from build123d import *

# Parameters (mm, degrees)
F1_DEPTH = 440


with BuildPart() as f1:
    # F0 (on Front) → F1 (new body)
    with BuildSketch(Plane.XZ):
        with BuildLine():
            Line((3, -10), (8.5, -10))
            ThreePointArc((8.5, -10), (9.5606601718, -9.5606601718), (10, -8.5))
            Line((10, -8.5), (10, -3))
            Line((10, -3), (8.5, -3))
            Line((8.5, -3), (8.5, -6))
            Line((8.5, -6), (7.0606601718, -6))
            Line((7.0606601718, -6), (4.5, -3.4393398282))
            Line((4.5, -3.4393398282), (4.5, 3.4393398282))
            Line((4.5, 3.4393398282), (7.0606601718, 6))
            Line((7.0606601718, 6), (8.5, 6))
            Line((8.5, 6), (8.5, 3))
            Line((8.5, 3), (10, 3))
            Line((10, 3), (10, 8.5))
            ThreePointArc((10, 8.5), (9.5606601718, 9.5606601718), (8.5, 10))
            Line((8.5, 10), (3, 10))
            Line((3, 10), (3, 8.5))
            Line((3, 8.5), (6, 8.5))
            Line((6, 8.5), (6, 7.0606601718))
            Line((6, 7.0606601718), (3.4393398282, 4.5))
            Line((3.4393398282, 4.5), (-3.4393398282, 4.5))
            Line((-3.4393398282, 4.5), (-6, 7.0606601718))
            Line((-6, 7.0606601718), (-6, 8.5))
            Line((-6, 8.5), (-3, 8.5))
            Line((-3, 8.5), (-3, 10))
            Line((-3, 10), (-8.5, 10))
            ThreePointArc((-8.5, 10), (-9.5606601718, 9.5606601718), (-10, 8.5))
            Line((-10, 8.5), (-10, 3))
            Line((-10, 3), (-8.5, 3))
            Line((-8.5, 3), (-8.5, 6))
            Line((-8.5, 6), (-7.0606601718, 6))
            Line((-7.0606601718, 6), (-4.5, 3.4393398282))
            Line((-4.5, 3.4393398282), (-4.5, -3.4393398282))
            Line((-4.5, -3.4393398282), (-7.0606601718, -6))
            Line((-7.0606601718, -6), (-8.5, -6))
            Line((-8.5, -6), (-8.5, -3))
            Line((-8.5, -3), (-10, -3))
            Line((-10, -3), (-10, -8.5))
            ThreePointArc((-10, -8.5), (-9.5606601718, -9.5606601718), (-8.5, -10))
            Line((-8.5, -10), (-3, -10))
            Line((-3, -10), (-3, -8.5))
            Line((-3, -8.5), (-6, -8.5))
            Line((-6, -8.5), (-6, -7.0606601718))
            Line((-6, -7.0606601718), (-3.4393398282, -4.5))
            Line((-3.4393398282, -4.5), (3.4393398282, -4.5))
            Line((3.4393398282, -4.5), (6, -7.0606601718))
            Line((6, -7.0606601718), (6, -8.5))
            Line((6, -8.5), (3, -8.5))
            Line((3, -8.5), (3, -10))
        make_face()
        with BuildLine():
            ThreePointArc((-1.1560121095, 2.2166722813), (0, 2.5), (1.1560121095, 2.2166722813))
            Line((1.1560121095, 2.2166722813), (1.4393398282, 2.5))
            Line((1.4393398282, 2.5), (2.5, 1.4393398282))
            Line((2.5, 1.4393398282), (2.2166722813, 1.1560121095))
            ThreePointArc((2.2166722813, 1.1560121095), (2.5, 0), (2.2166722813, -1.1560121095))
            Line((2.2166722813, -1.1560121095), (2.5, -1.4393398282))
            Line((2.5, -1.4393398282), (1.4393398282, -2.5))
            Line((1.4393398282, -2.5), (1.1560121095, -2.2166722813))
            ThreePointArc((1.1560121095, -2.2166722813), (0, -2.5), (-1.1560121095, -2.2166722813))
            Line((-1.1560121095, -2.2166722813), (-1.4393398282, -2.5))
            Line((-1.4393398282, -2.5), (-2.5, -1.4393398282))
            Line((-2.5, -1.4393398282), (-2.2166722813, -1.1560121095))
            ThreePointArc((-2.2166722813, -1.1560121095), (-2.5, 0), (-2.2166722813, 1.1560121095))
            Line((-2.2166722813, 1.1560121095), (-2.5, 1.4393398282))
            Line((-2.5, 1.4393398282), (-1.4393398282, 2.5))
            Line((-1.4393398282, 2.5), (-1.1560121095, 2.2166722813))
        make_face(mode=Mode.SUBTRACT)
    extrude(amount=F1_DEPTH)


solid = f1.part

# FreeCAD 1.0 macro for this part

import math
import FreeCAD as App
import Part
import Sketcher

doc = App.newDocument("Part")
params = doc.addObject("Spreadsheet::Sheet", "Params")
for row, (alias, value) in enumerate([
    ("sketch1_radius", "1.5 mm"),
    ("sketch1_radius2", "2.5 mm"),
    ("sketch1_width", "3 mm"),
    ("sketch1_width2", "5.5 mm"),
    ("sketch1_length", "1.5 mm"),
    ("pad1_length", "440 mm"),
], start=1):
    params.set(f"A{row}", alias)
    params.set(f"B{row}", "=" + value)
    params.setAlias(f"B{row}", alias)

body = doc.addObject("PartDesign::Body", "Body")

# Sketch on XZ plane
sketch1 = body.newObject("Sketcher::SketchObject", "Sketch")
sketch1.AttachmentSupport = (doc.getObject("XZ_Plane"), [""])
sketch1.MapMode = "FlatFace"
sketch1.addGeometry(Part.LineSegment(App.Vector(3, -10, 0), App.Vector(8.5, -10, 0)), False)
sketch1.addGeometry(Part.ArcOfCircle(Part.Circle(App.Vector(8.5, -8.5, 0), App.Vector(0, 0, 1), 1.5), math.radians(-90), math.radians(0)), False)
sketch1.addGeometry(Part.LineSegment(App.Vector(10, -8.5, 0), App.Vector(10, -3, 0)), False)
sketch1.addGeometry(Part.LineSegment(App.Vector(10, -3, 0), App.Vector(8.5, -3, 0)), False)
sketch1.addGeometry(Part.LineSegment(App.Vector(8.5, -3, 0), App.Vector(8.5, -6, 0)), False)
sketch1.addGeometry(Part.LineSegment(App.Vector(8.5, -6, 0), App.Vector(7.06, -6, 0)), False)
sketch1.addGeometry(Part.LineSegment(App.Vector(7.06, -6, 0), App.Vector(4.5, -3.44, 0)), False)
sketch1.addGeometry(Part.LineSegment(App.Vector(4.5, -3.44, 0), App.Vector(4.5, 3.44, 0)), False)
sketch1.addGeometry(Part.LineSegment(App.Vector(4.5, 3.44, 0), App.Vector(7.06, 6, 0)), False)
sketch1.addGeometry(Part.LineSegment(App.Vector(7.06, 6, 0), App.Vector(8.5, 6, 0)), False)
sketch1.addGeometry(Part.LineSegment(App.Vector(8.5, 6, 0), App.Vector(8.5, 3, 0)), False)
sketch1.addGeometry(Part.LineSegment(App.Vector(8.5, 3, 0), App.Vector(10, 3, 0)), False)
sketch1.addGeometry(Part.LineSegment(App.Vector(10, 3, 0), App.Vector(10, 8.5, 0)), False)
sketch1.addGeometry(Part.ArcOfCircle(Part.Circle(App.Vector(8.5, 8.5, 0), App.Vector(0, 0, 1), 1.5), math.radians(0), math.radians(90)), False)
sketch1.addGeometry(Part.LineSegment(App.Vector(8.5, 10, 0), App.Vector(3, 10, 0)), False)
sketch1.addGeometry(Part.LineSegment(App.Vector(3, 10, 0), App.Vector(3, 8.5, 0)), False)
sketch1.addGeometry(Part.LineSegment(App.Vector(3, 8.5, 0), App.Vector(6, 8.5, 0)), False)
sketch1.addGeometry(Part.LineSegment(App.Vector(6, 8.5, 0), App.Vector(6, 7.06, 0)), False)
sketch1.addGeometry(Part.LineSegment(App.Vector(6, 7.06, 0), App.Vector(3.44, 4.5, 0)), False)
sketch1.addGeometry(Part.LineSegment(App.Vector(3.44, 4.5, 0), App.Vector(-3.44, 4.5, 0)), False)
sketch1.addGeometry(Part.LineSegment(App.Vector(-3.44, 4.5, 0), App.Vector(-6, 7.06, 0)), False)
sketch1.addGeometry(Part.LineSegment(App.Vector(-6, 7.06, 0), App.Vector(-6, 8.5, 0)), False)
sketch1.addGeometry(Part.LineSegment(App.Vector(-6, 8.5, 0), App.Vector(-3, 8.5, 0)), False)
sketch1.addGeometry(Part.LineSegment(App.Vector(-3, 8.5, 0), App.Vector(-3, 10, 0)), False)
sketch1.addGeometry(Part.LineSegment(App.Vector(-3, 10, 0), App.Vector(-8.5, 10, 0)), False)
sketch1.addGeometry(Part.ArcOfCircle(Part.Circle(App.Vector(-8.5, 8.5, 0), App.Vector(0, 0, 1), 1.5), math.radians(90), math.radians(180)), False)
sketch1.addGeometry(Part.LineSegment(App.Vector(-10, 8.5, 0), App.Vector(-10, 3, 0)), False)
sketch1.addGeometry(Part.LineSegment(App.Vector(-10, 3, 0), App.Vector(-8.5, 3, 0)), False)
sketch1.addGeometry(Part.LineSegment(App.Vector(-8.5, 3, 0), App.Vector(-8.5, 6, 0)), False)
sketch1.addGeometry(Part.LineSegment(App.Vector(-8.5, 6, 0), App.Vector(-7.06, 6, 0)), False)
sketch1.addGeometry(Part.LineSegment(App.Vector(-7.06, 6, 0), App.Vector(-4.5, 3.44, 0)), False)
sketch1.addGeometry(Part.LineSegment(App.Vector(-4.5, 3.44, 0), App.Vector(-4.5, -3.44, 0)), False)
sketch1.addGeometry(Part.LineSegment(App.Vector(-4.5, -3.44, 0), App.Vector(-7.06, -6, 0)), False)
sketch1.addGeometry(Part.LineSegment(App.Vector(-7.06, -6, 0), App.Vector(-8.5, -6, 0)), False)
sketch1.addGeometry(Part.LineSegment(App.Vector(-8.5, -6, 0), App.Vector(-8.5, -3, 0)), False)
sketch1.addGeometry(Part.LineSegment(App.Vector(-8.5, -3, 0), App.Vector(-10, -3, 0)), False)
sketch1.addGeometry(Part.LineSegment(App.Vector(-10, -3, 0), App.Vector(-10, -8.5, 0)), False)
sketch1.addGeometry(Part.ArcOfCircle(Part.Circle(App.Vector(-8.5, -8.5, 0), App.Vector(0, 0, 1), 1.5), math.radians(180), math.radians(270)), False)
sketch1.addGeometry(Part.LineSegment(App.Vector(-8.5, -10, 0), App.Vector(-3, -10, 0)), False)
sketch1.addGeometry(Part.LineSegment(App.Vector(-3, -10, 0), App.Vector(-3, -8.5, 0)), False)
sketch1.addGeometry(Part.LineSegment(App.Vector(-3, -8.5, 0), App.Vector(-6, -8.5, 0)), False)
sketch1.addGeometry(Part.LineSegment(App.Vector(-6, -8.5, 0), App.Vector(-6, -7.06, 0)), False)
sketch1.addGeometry(Part.LineSegment(App.Vector(-6, -7.06, 0), App.Vector(-3.44, -4.5, 0)), False)
sketch1.addGeometry(Part.LineSegment(App.Vector(-3.44, -4.5, 0), App.Vector(3.44, -4.5, 0)), False)
sketch1.addGeometry(Part.LineSegment(App.Vector(3.44, -4.5, 0), App.Vector(6, -7.06, 0)), False)
sketch1.addGeometry(Part.LineSegment(App.Vector(6, -7.06, 0), App.Vector(6, -8.5, 0)), False)
sketch1.addGeometry(Part.LineSegment(App.Vector(6, -8.5, 0), App.Vector(3, -8.5, 0)), False)
sketch1.addGeometry(Part.LineSegment(App.Vector(3, -8.5, 0), App.Vector(3, -10, 0)), False)
sketch1.addGeometry(Part.LineSegment(App.Vector(-1.44, 2.5, 0), App.Vector(-1.16, 2.22, 0)), False)
sketch1.addGeometry(Part.ArcOfCircle(Part.Circle(App.Vector(0, 0, 0), App.Vector(0, 0, 1), 2.5), math.radians(62), math.radians(118)), False)
sketch1.addGeometry(Part.LineSegment(App.Vector(1.16, 2.22, 0), App.Vector(1.44, 2.5, 0)), False)
sketch1.addGeometry(Part.LineSegment(App.Vector(1.44, 2.5, 0), App.Vector(2.5, 1.44, 0)), False)
sketch1.addGeometry(Part.LineSegment(App.Vector(2.5, 1.44, 0), App.Vector(2.22, 1.16, 0)), False)
sketch1.addGeometry(Part.ArcOfCircle(Part.Circle(App.Vector(0, 0, 0), App.Vector(0, 0, 1), 2.5), math.radians(-28), math.radians(28)), False)
sketch1.addGeometry(Part.LineSegment(App.Vector(2.22, -1.16, 0), App.Vector(2.5, -1.44, 0)), False)
sketch1.addGeometry(Part.LineSegment(App.Vector(2.5, -1.44, 0), App.Vector(1.44, -2.5, 0)), False)
sketch1.addGeometry(Part.LineSegment(App.Vector(1.44, -2.5, 0), App.Vector(1.16, -2.22, 0)), False)
sketch1.addGeometry(Part.ArcOfCircle(Part.Circle(App.Vector(0, 0, 0), App.Vector(0, 0, 1), 2.5), math.radians(-118), math.radians(-62)), False)
sketch1.addGeometry(Part.LineSegment(App.Vector(-1.16, -2.22, 0), App.Vector(-1.44, -2.5, 0)), False)
sketch1.addGeometry(Part.LineSegment(App.Vector(-1.44, -2.5, 0), App.Vector(-2.5, -1.44, 0)), False)
sketch1.addGeometry(Part.LineSegment(App.Vector(-2.5, -1.44, 0), App.Vector(-2.22, -1.16, 0)), False)
sketch1.addGeometry(Part.ArcOfCircle(Part.Circle(App.Vector(0, 0, 0), App.Vector(0, 0, 1), 2.5), math.radians(152), math.radians(208)), False)
sketch1.addGeometry(Part.LineSegment(App.Vector(-2.22, 1.16, 0), App.Vector(-2.5, 1.44, 0)), False)
sketch1.addGeometry(Part.LineSegment(App.Vector(-2.5, 1.44, 0), App.Vector(-1.44, 2.5, 0)), False)
sketch1.addConstraint(Sketcher.Constraint("Tangent", 0, 2, 1, 1))
sketch1.addConstraint(Sketcher.Constraint("Tangent", 1, 2, 2, 1))
sketch1.addConstraint(Sketcher.Constraint("Coincident", 2, 2, 3, 1))
sketch1.addConstraint(Sketcher.Constraint("Coincident", 3, 2, 4, 1))
sketch1.addConstraint(Sketcher.Constraint("Coincident", 4, 2, 5, 1))
sketch1.addConstraint(Sketcher.Constraint("Coincident", 5, 2, 6, 1))
sketch1.addConstraint(Sketcher.Constraint("Coincident", 6, 2, 7, 1))
sketch1.addConstraint(Sketcher.Constraint("Coincident", 7, 2, 8, 1))
sketch1.addConstraint(Sketcher.Constraint("Coincident", 8, 2, 9, 1))
sketch1.addConstraint(Sketcher.Constraint("Coincident", 9, 2, 10, 1))
sketch1.addConstraint(Sketcher.Constraint("Coincident", 10, 2, 11, 1))
sketch1.addConstraint(Sketcher.Constraint("Coincident", 11, 2, 12, 1))
sketch1.addConstraint(Sketcher.Constraint("Tangent", 12, 2, 13, 1))
sketch1.addConstraint(Sketcher.Constraint("Tangent", 13, 2, 14, 1))
sketch1.addConstraint(Sketcher.Constraint("Coincident", 14, 2, 15, 1))
sketch1.addConstraint(Sketcher.Constraint("Coincident", 15, 2, 16, 1))
sketch1.addConstraint(Sketcher.Constraint("Coincident", 16, 2, 17, 1))
sketch1.addConstraint(Sketcher.Constraint("Coincident", 17, 2, 18, 1))
sketch1.addConstraint(Sketcher.Constraint("Coincident", 18, 2, 19, 1))
sketch1.addConstraint(Sketcher.Constraint("Coincident", 19, 2, 20, 1))
sketch1.addConstraint(Sketcher.Constraint("Coincident", 20, 2, 21, 1))
sketch1.addConstraint(Sketcher.Constraint("Coincident", 21, 2, 22, 1))
sketch1.addConstraint(Sketcher.Constraint("Coincident", 22, 2, 23, 1))
sketch1.addConstraint(Sketcher.Constraint("Coincident", 23, 2, 24, 1))
sketch1.addConstraint(Sketcher.Constraint("Tangent", 24, 2, 25, 1))
sketch1.addConstraint(Sketcher.Constraint("Tangent", 25, 2, 26, 1))
sketch1.addConstraint(Sketcher.Constraint("Coincident", 26, 2, 27, 1))
sketch1.addConstraint(Sketcher.Constraint("Coincident", 27, 2, 28, 1))
sketch1.addConstraint(Sketcher.Constraint("Coincident", 28, 2, 29, 1))
sketch1.addConstraint(Sketcher.Constraint("Coincident", 29, 2, 30, 1))
sketch1.addConstraint(Sketcher.Constraint("Coincident", 30, 2, 31, 1))
sketch1.addConstraint(Sketcher.Constraint("Coincident", 31, 2, 32, 1))
sketch1.addConstraint(Sketcher.Constraint("Coincident", 32, 2, 33, 1))
sketch1.addConstraint(Sketcher.Constraint("Coincident", 33, 2, 34, 1))
sketch1.addConstraint(Sketcher.Constraint("Coincident", 34, 2, 35, 1))
sketch1.addConstraint(Sketcher.Constraint("Coincident", 35, 2, 36, 1))
sketch1.addConstraint(Sketcher.Constraint("Tangent", 36, 2, 37, 1))
sketch1.addConstraint(Sketcher.Constraint("Tangent", 37, 2, 38, 1))
sketch1.addConstraint(Sketcher.Constraint("Coincident", 38, 2, 39, 1))
sketch1.addConstraint(Sketcher.Constraint("Coincident", 39, 2, 40, 1))
sketch1.addConstraint(Sketcher.Constraint("Coincident", 40, 2, 41, 1))
sketch1.addConstraint(Sketcher.Constraint("Coincident", 41, 2, 42, 1))
sketch1.addConstraint(Sketcher.Constraint("Coincident", 42, 2, 43, 1))
sketch1.addConstraint(Sketcher.Constraint("Coincident", 43, 2, 44, 1))
sketch1.addConstraint(Sketcher.Constraint("Coincident", 44, 2, 45, 1))
sketch1.addConstraint(Sketcher.Constraint("Coincident", 45, 2, 46, 1))
sketch1.addConstraint(Sketcher.Constraint("Coincident", 46, 2, 47, 1))
sketch1.addConstraint(Sketcher.Constraint("Coincident", 47, 2, 0, 1))
sketch1.addConstraint(Sketcher.Constraint("Coincident", 48, 2, 49, 2))
sketch1.addConstraint(Sketcher.Constraint("Coincident", 49, 1, 50, 1))
sketch1.addConstraint(Sketcher.Constraint("Coincident", 50, 2, 51, 1))
sketch1.addConstraint(Sketcher.Constraint("Coincident", 51, 2, 52, 1))
sketch1.addConstraint(Sketcher.Constraint("Coincident", 52, 2, 53, 2))
sketch1.addConstraint(Sketcher.Constraint("Coincident", 53, 1, 54, 1))
sketch1.addConstraint(Sketcher.Constraint("Coincident", 54, 2, 55, 1))
sketch1.addConstraint(Sketcher.Constraint("Coincident", 55, 2, 56, 1))
sketch1.addConstraint(Sketcher.Constraint("Coincident", 56, 2, 57, 2))
sketch1.addConstraint(Sketcher.Constraint("Coincident", 57, 1, 58, 1))
sketch1.addConstraint(Sketcher.Constraint("Coincident", 58, 2, 59, 1))
sketch1.addConstraint(Sketcher.Constraint("Coincident", 59, 2, 60, 1))
sketch1.addConstraint(Sketcher.Constraint("Coincident", 60, 2, 61, 2))
sketch1.addConstraint(Sketcher.Constraint("Coincident", 61, 1, 62, 1))
sketch1.addConstraint(Sketcher.Constraint("Coincident", 62, 2, 63, 1))
sketch1.addConstraint(Sketcher.Constraint("Coincident", 63, 2, 48, 1))
sketch1.addConstraint(Sketcher.Constraint("Horizontal", 0))
sketch1.addConstraint(Sketcher.Constraint("Vertical", 2))
sketch1.addConstraint(Sketcher.Constraint("Horizontal", 3))
sketch1.addConstraint(Sketcher.Constraint("Vertical", 4))
sketch1.addConstraint(Sketcher.Constraint("Horizontal", 5))
sketch1.addConstraint(Sketcher.Constraint("Vertical", 7))
sketch1.addConstraint(Sketcher.Constraint("Horizontal", 9))
sketch1.addConstraint(Sketcher.Constraint("Vertical", 10))
sketch1.addConstraint(Sketcher.Constraint("Horizontal", 11))
sketch1.addConstraint(Sketcher.Constraint("Vertical", 12))
sketch1.addConstraint(Sketcher.Constraint("Horizontal", 14))
sketch1.addConstraint(Sketcher.Constraint("Vertical", 15))
sketch1.addConstraint(Sketcher.Constraint("Horizontal", 16))
sketch1.addConstraint(Sketcher.Constraint("Vertical", 17))
sketch1.addConstraint(Sketcher.Constraint("Horizontal", 19))
sketch1.addConstraint(Sketcher.Constraint("Vertical", 21))
sketch1.addConstraint(Sketcher.Constraint("Horizontal", 22))
sketch1.addConstraint(Sketcher.Constraint("Vertical", 23))
sketch1.addConstraint(Sketcher.Constraint("Horizontal", 24))
sketch1.addConstraint(Sketcher.Constraint("Vertical", 26))
sketch1.addConstraint(Sketcher.Constraint("Horizontal", 27))
sketch1.addConstraint(Sketcher.Constraint("Vertical", 28))
sketch1.addConstraint(Sketcher.Constraint("Horizontal", 29))
sketch1.addConstraint(Sketcher.Constraint("Vertical", 31))
sketch1.addConstraint(Sketcher.Constraint("Horizontal", 33))
sketch1.addConstraint(Sketcher.Constraint("Vertical", 34))
sketch1.addConstraint(Sketcher.Constraint("Horizontal", 35))
sketch1.addConstraint(Sketcher.Constraint("Vertical", 36))
sketch1.addConstraint(Sketcher.Constraint("Horizontal", 38))
sketch1.addConstraint(Sketcher.Constraint("Vertical", 39))
sketch1.addConstraint(Sketcher.Constraint("Horizontal", 40))
sketch1.addConstraint(Sketcher.Constraint("Vertical", 41))
sketch1.addConstraint(Sketcher.Constraint("Horizontal", 43))
sketch1.addConstraint(Sketcher.Constraint("Vertical", 45))
sketch1.addConstraint(Sketcher.Constraint("Horizontal", 46))
sketch1.addConstraint(Sketcher.Constraint("Vertical", 47))
sketch1.addConstraint(Sketcher.Constraint("Coincident", 49, 3, -1, 1))
sketch1.addConstraint(Sketcher.Constraint("Coincident", 53, 3, -1, 1))
sketch1.addConstraint(Sketcher.Constraint("Coincident", 57, 3, -1, 1))
sketch1.addConstraint(Sketcher.Constraint("Coincident", 61, 3, -1, 1))
sketch1.addConstraint(Sketcher.Constraint("Equal", 1, 13))
sketch1.addConstraint(Sketcher.Constraint("Equal", 13, 25))
sketch1.addConstraint(Sketcher.Constraint("Equal", 25, 37))
sketch1.addConstraint(Sketcher.Constraint("Equal", 49, 53))
sketch1.addConstraint(Sketcher.Constraint("Equal", 53, 57))
sketch1.addConstraint(Sketcher.Constraint("Equal", 57, 61))
sketch1.addConstraint(Sketcher.Constraint("Symmetric", 1, 3, 25, 3, -1, 1))
sketch1.addConstraint(Sketcher.Constraint("Symmetric", 13, 3, 37, 3, -1, 1))
sketch1.addConstraint(Sketcher.Constraint("Symmetric", 3, 2, 27, 2, -1, 1))
sketch1.addConstraint(Sketcher.Constraint("Symmetric", 5, 2, 29, 2, -1, 1))
sketch1.addConstraint(Sketcher.Constraint("Symmetric", 6, 2, 30, 2, -1, 1))
sketch1.addConstraint(Sketcher.Constraint("Symmetric", 8, 2, 32, 2, -1, 1))
sketch1.addConstraint(Sketcher.Constraint("Symmetric", 10, 2, 34, 2, -1, 1))
sketch1.addConstraint(Sketcher.Constraint("Symmetric", 15, 2, 39, 2, -1, 1))
sketch1.addConstraint(Sketcher.Constraint("Symmetric", 17, 2, 41, 2, -1, 1))
sketch1.addConstraint(Sketcher.Constraint("Symmetric", 18, 2, 42, 2, -1, 1))
sketch1.addConstraint(Sketcher.Constraint("Symmetric", 20, 2, 44, 2, -1, 1))
sketch1.addConstraint(Sketcher.Constraint("Symmetric", 22, 2, 46, 2, -1, 1))
sketch1.addConstraint(Sketcher.Constraint("Symmetric", 50, 2, 58, 2, -1, 1))
sketch1.addConstraint(Sketcher.Constraint("Symmetric", 51, 2, 59, 2, -1, 1))
sketch1.addConstraint(Sketcher.Constraint("Symmetric", 54, 2, 62, 2, -1, 1))
sketch1.addConstraint(Sketcher.Constraint("Symmetric", 55, 2, 63, 2, -1, 1))
sketch1.addConstraint(Sketcher.Constraint("Symmetric", 13, 3, 25, 3, -2))
sketch1.addConstraint(Sketcher.Constraint("Symmetric", 17, 2, 20, 2, -2))
sketch1.addConstraint(Sketcher.Constraint("Symmetric", 15, 2, 22, 2, -2))
sketch1.addConstraint(Sketcher.Constraint("Symmetric", 10, 2, 27, 2, -2))
sketch1.addConstraint(Sketcher.Constraint("Symmetric", 8, 2, 29, 2, -2))
sketch1.addConstraint(Sketcher.Constraint("Symmetric", 55, 2, 58, 2, -2))
sketch1.addConstraint(Sketcher.Constraint("Symmetric", 54, 2, 59, 2, -2))
sketch1.addConstraint(Sketcher.Constraint("Perpendicular", 6, 8))
sketch1.addConstraint(Sketcher.Constraint("Parallel", 8, 18))
sketch1.addConstraint(Sketcher.Constraint("Perpendicular", 18, 20))
sketch1.addConstraint(Sketcher.Constraint("Perpendicular", 30, 32))
sketch1.addConstraint(Sketcher.Constraint("Perpendicular", 42, 44))
sketch1.addConstraint(Sketcher.Constraint("Parallel", 44, 48))
sketch1.addConstraint(Sketcher.Constraint("Perpendicular", 48, 50))
sketch1.addConstraint(Sketcher.Constraint("Perpendicular", 50, 51))
sketch1.addConstraint(Sketcher.Constraint("Perpendicular", 51, 52))
sketch1.addConstraint(Sketcher.Constraint("Perpendicular", 52, 54))
sketch1.addConstraint(Sketcher.Constraint("Perpendicular", 54, 55))
sketch1.addConstraint(Sketcher.Constraint("Perpendicular", 55, 56))
sketch1.addConstraint(Sketcher.Constraint("Perpendicular", 56, 58))
sketch1.addConstraint(Sketcher.Constraint("Perpendicular", 59, 60))
sketch1.addConstraint(Sketcher.Constraint("Perpendicular", 60, 62))
sketch1.addConstraint(Sketcher.Constraint("Horizontal", 12, 2, 15, 2))
sketch1.addConstraint(Sketcher.Constraint("Vertical", 0, 2, 3, 2))
sketch1.addConstraint(Sketcher.Constraint("Equal", 38, 2))
sketch1.addConstraint(Sketcher.Constraint("Equal", 46, 4))
sketch1.addConstraint(Sketcher.Constraint("Equal", 43, 7))
sketch1.addConstraint(Sketcher.Constraint("Equal", 33, 17))
sketch1.addConstraint(Sketcher.Constraint("Equal", 8, 18))
sketch1.addConstraint(Sketcher.Constraint("Equal", 50, 52))
sketch1.addConstraint(Sketcher.Constraint("Radius", 1, 1.5))
sketch1.addConstraint(Sketcher.Constraint("Radius", 49, 2.5))
sketch1.addConstraint(Sketcher.Constraint("DistanceX", 16, 1, 16, 2, 3.0))
sketch1.addConstraint(Sketcher.Constraint("DistanceX", 0, 1, 0, 2, 5.5))
sketch1.addConstraint(Sketcher.Constraint("DistanceY", 0, 2, -1, 1, 10.0))
sketch1.addConstraint(Sketcher.Constraint("Distance", 51, 1.5))
sketch1.addConstraint(Sketcher.Constraint("DistanceX", -1, 1, 6, 2, 4.5))
sketch1.addConstraint(Sketcher.Constraint("DistanceY", -1, 1, 50, 2, 2.5))
sketch1.addConstraint(Sketcher.Constraint("DistanceX", 5, 2, 5, 1, 1.43934))
sketch1.setExpression("Constraints[156]", "Params.sketch1_radius")
sketch1.setExpression("Constraints[157]", "Params.sketch1_radius2")
sketch1.setExpression("Constraints[158]", "Params.sketch1_width")
sketch1.setExpression("Constraints[159]", "Params.sketch1_width2")
sketch1.setExpression("Constraints[161]", "Params.sketch1_length")
pad1 = body.newObject("PartDesign::Pad", "Pad")
pad1.Profile = sketch1
pad1.setExpression("Length", "Params.pad1_length")

doc.recompute()
